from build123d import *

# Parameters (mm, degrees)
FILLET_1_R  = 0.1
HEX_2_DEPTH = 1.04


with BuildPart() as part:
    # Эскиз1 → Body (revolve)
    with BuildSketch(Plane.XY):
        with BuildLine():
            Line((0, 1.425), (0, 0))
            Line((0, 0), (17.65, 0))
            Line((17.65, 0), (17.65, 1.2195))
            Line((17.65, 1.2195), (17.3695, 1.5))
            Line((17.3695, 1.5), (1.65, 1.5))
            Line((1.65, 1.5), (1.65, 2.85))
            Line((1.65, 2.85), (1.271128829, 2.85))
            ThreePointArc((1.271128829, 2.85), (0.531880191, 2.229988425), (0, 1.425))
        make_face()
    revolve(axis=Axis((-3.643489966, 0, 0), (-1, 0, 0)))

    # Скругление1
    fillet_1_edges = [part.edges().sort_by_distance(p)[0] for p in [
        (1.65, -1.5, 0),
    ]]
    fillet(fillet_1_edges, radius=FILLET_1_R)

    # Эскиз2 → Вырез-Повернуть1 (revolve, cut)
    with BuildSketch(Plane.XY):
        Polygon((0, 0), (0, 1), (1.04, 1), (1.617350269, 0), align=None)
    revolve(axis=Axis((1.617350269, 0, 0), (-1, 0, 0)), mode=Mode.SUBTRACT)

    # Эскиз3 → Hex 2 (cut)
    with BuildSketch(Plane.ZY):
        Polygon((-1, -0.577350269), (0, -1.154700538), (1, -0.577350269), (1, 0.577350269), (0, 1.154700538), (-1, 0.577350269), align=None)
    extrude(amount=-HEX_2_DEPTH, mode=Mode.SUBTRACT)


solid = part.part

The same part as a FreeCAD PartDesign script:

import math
import FreeCAD as App
import Part
import Sketcher
Q = App.Units.Quantity


def edges_at(feature, points):
    """Names of the edges that pass closest to the given points."""
    edges = feature.Shape.Edges
    near = lambda p: min(range(len(edges)), key=lambda i: edges[i].distToShape(Part.Vertex(*p))[0])
    return sorted({f"Edge{near(p) + 1}" for p in points})

doc = App.newDocument("Part")
body = doc.addObject("PartDesign::Body", "Body")

sketch1 = body.newObject("Sketcher::SketchObject", "Sketch")
sketch1.AttachmentSupport = (doc.getObject("XY_Plane"), [""])
sketch1.MapMode = "FlatFace"
sketch1.addGeometry(Part.LineSegment(App.Vector(0, 1.43, 0), App.Vector(0, 0, 0)), False)
sketch1.addGeometry(Part.LineSegment(App.Vector(0, 0, 0), App.Vector(17.65, 0, 0)), False)
sketch1.addGeometry(Part.LineSegment(App.Vector(17.65, 0, 0), App.Vector(17.65, 1.22, 0)), False)
sketch1.addGeometry(Part.LineSegment(App.Vector(17.65, 1.22, 0), App.Vector(17.37, 1.5, 0)), False)
sketch1.addGeometry(Part.LineSegment(App.Vector(17.37, 1.5, 0), App.Vector(1.65, 1.5, 0)), False)
sketch1.addGeometry(Part.LineSegment(App.Vector(1.65, 1.5, 0), App.Vector(1.65, 2.85, 0)), False)
sketch1.addGeometry(Part.LineSegment(App.Vector(1.65, 2.85, 0), App.Vector(1.27, 2.85, 0)), False)
sketch1.addGeometry(Part.ArcOfCircle(Part.Circle(App.Vector(3.03, 0, 0), App.Vector(0, 0, 1), 3.35), math.radians(122), math.radians(155)), False)
sketch1.addConstraint(Sketcher.Constraint("Coincident", 0, 2, 1, 1))
sketch1.addConstraint(Sketcher.Constraint("Coincident", 1, 2, 2, 1))
sketch1.addConstraint(Sketcher.Constraint("Coincident", 2, 2, 3, 1))
sketch1.addConstraint(Sketcher.Constraint("Coincident", 3, 2, 4, 1))
sketch1.addConstraint(Sketcher.Constraint("Coincident", 4, 2, 5, 1))
sketch1.addConstraint(Sketcher.Constraint("Coincident", 5, 2, 6, 1))
sketch1.addConstraint(Sketcher.Constraint("Coincident", 6, 2, 7, 1))
sketch1.addConstraint(Sketcher.Constraint("Coincident", 7, 2, 0, 1))
sketch1.addConstraint(Sketcher.Constraint("Vertical", 0))
sketch1.addConstraint(Sketcher.Constraint("Horizontal", 1))
sketch1.addConstraint(Sketcher.Constraint("Vertical", 2))
sketch1.addConstraint(Sketcher.Constraint("Horizontal", 4))
sketch1.addConstraint(Sketcher.Constraint("Vertical", 5))
sketch1.addConstraint(Sketcher.Constraint("Horizontal", 6))
sketch1.addConstraint(Sketcher.Constraint("Coincident", 0, 2, -1, 1))
sketch1.addConstraint(Sketcher.Constraint("PointOnObject", 7, 3, -1))
sketch1.addConstraint(Sketcher.Constraint("Angle", 3, Q("135 deg")))
sketch1.addConstraint(Sketcher.Constraint("Radius", 7, 3.35))
sketch1.addConstraint(Sketcher.Constraint("DistanceX", 4, 2, 2, 2, 16.0))
sketch1.addConstraint(Sketcher.Constraint("DistanceX", 1, 1, 1, 2, 17.65))
sketch1.addConstraint(Sketcher.Constraint("DistanceY", 5, 1, 5, 2, 1.35))
sketch1.addConstraint(Sketcher.Constraint("DistanceY", -1, 1, 3, 2, 1.5))
sketch1.addConstraint(Sketcher.Constraint("DistanceY", 0, 2, 0, 1, 1.425))
sketch1.addConstraint(Sketcher.Constraint("DistanceX", 4, 2, 4, 1, 15.7195))
revolution = body.newObject("PartDesign::Revolution", "Revolution")
revolution.Profile = sketch1
revolution.ReferenceAxis = (sketch1, ["H_Axis"])
revolution.Angle = 360
doc.recompute()

fillet = body.newObject("PartDesign::Fillet", "Fillet")
fillet.Base = (revolution, edges_at(revolution, [(1.65, -1.5, 0)]))
fillet.Radius = 0.1

sketch2 = body.newObject("Sketcher::SketchObject", "Sketch001")
sketch2.AttachmentSupport = (doc.getObject("XY_Plane"), [""])
sketch2.MapMode = "FlatFace"
sketch2.addGeometry(Part.LineSegment(App.Vector(0, 1, 0), App.Vector(0, 0, 0)), False)
sketch2.addGeometry(Part.LineSegment(App.Vector(0, 0, 0), App.Vector(1.6, 0, 0)), False)
sketch2.addGeometry(Part.LineSegment(App.Vector(1.6, 0, 0), App.Vector(1, 1, 0)), False)
sketch2.addGeometry(Part.LineSegment(App.Vector(1, 1, 0), App.Vector(0, 1, 0)), False)
sketch2.addConstraint(Sketcher.Constraint("Coincident", 0, 2, 1, 1))
sketch2.addConstraint(Sketcher.Constraint("Coincident", 1, 2, 2, 1))
sketch2.addConstraint(Sketcher.Constraint("Coincident", 2, 2, 3, 1))
sketch2.addConstraint(Sketcher.Constraint("Coincident", 3, 2, 0, 1))
sketch2.addConstraint(Sketcher.Constraint("Vertical", 0))
sketch2.addConstraint(Sketcher.Constraint("Horizontal", 1))
sketch2.addConstraint(Sketcher.Constraint("Horizontal", 3))
sketch2.addConstraint(Sketcher.Constraint("Coincident", 0, 2, -1, 1))
sketch2.addConstraint(Sketcher.Constraint("DistanceY", 0, 2, 0, 1, 1.0))
sketch2.addConstraint(Sketcher.Constraint("Angle", 2, Q("120 deg")))
sketch2.addConstraint(Sketcher.Constraint("DistanceX", 3, 2, 3, 1, 1.04))
groove = body.newObject("PartDesign::Groove", "Groove")
groove.Profile = sketch2
groove.ReferenceAxis = (sketch2, ["H_Axis"])
groove.Angle = 360

sketch3 = body.newObject("Sketcher::SketchObject", "Sketch002")
sketch3.AttachmentSupport = (doc.getObject("YZ_Plane"), [""])
sketch3.MapMode = "FlatFace"
sketch3.addGeometry(Part.LineSegment(App.Vector(-0.6, -1, 0), App.Vector(-1.2, 0, 0)), False)
sketch3.addGeometry(Part.LineSegment(App.Vector(-1.2, 0, 0), App.Vector(-0.6, 1, 0)), False)
sketch3.addGeometry(Part.LineSegment(App.Vector(-0.6, 1, 0), App.Vector(0.6, 1, 0)), False)
sketch3.addGeometry(Part.LineSegment(App.Vector(0.6, 1, 0), App.Vector(1.2, 0, 0)), False)
sketch3.addGeometry(Part.LineSegment(App.Vector(1.2, 0, 0), App.Vector(0.6, -1, 0)), False)
sketch3.addGeometry(Part.LineSegment(App.Vector(0.6, -1, 0), App.Vector(-0.6, -1, 0)), False)
sketch3.addConstraint(Sketcher.Constraint("Coincident", 0, 2, 1, 1))
sketch3.addConstraint(Sketcher.Constraint("Coincident", 1, 2, 2, 1))
sketch3.addConstraint(Sketcher.Constraint("Coincident", 2, 2, 3, 1))
sketch3.addConstraint(Sketcher.Constraint("Coincident", 3, 2, 4, 1))
sketch3.addConstraint(Sketcher.Constraint("Coincident", 4, 2, 5, 1))
sketch3.addConstraint(Sketcher.Constraint("Coincident", 5, 2, 0, 1))
sketch3.addConstraint(Sketcher.Constraint("Horizontal", 2))
sketch3.addConstraint(Sketcher.Constraint("Horizontal", 5))
sketch3.addConstraint(Sketcher.Constraint("Symmetric", 0, 2, 3, 2, -1, 1))
sketch3.addConstraint(Sketcher.Constraint("Symmetric", 1, 2, 4, 2, -1, 1))
sketch3.addConstraint(Sketcher.Constraint("PointOnObject", 0, 2, -1))
sketch3.addConstraint(Sketcher.Constraint("Parallel", 0, 3))
sketch3.addConstraint(Sketcher.Constraint("Vertical", 2, 2, 4, 2))
sketch3.addConstraint(Sketcher.Constraint("Angle", 0, Q("120 deg")))
sketch3.addConstraint(Sketcher.Constraint("DistanceY", -1, 1, 1, 2, 1.0))
sketch3.addConstraint(Sketcher.Constraint("DistanceX", 2, 1, 2, 2, 1.154701))
pocket1 = body.newObject("PartDesign::Pocket", "Pocket")
pocket1.Profile = sketch3
pocket1.Length = 1.04
pocket1.Reversed = True

doc.recompute()
